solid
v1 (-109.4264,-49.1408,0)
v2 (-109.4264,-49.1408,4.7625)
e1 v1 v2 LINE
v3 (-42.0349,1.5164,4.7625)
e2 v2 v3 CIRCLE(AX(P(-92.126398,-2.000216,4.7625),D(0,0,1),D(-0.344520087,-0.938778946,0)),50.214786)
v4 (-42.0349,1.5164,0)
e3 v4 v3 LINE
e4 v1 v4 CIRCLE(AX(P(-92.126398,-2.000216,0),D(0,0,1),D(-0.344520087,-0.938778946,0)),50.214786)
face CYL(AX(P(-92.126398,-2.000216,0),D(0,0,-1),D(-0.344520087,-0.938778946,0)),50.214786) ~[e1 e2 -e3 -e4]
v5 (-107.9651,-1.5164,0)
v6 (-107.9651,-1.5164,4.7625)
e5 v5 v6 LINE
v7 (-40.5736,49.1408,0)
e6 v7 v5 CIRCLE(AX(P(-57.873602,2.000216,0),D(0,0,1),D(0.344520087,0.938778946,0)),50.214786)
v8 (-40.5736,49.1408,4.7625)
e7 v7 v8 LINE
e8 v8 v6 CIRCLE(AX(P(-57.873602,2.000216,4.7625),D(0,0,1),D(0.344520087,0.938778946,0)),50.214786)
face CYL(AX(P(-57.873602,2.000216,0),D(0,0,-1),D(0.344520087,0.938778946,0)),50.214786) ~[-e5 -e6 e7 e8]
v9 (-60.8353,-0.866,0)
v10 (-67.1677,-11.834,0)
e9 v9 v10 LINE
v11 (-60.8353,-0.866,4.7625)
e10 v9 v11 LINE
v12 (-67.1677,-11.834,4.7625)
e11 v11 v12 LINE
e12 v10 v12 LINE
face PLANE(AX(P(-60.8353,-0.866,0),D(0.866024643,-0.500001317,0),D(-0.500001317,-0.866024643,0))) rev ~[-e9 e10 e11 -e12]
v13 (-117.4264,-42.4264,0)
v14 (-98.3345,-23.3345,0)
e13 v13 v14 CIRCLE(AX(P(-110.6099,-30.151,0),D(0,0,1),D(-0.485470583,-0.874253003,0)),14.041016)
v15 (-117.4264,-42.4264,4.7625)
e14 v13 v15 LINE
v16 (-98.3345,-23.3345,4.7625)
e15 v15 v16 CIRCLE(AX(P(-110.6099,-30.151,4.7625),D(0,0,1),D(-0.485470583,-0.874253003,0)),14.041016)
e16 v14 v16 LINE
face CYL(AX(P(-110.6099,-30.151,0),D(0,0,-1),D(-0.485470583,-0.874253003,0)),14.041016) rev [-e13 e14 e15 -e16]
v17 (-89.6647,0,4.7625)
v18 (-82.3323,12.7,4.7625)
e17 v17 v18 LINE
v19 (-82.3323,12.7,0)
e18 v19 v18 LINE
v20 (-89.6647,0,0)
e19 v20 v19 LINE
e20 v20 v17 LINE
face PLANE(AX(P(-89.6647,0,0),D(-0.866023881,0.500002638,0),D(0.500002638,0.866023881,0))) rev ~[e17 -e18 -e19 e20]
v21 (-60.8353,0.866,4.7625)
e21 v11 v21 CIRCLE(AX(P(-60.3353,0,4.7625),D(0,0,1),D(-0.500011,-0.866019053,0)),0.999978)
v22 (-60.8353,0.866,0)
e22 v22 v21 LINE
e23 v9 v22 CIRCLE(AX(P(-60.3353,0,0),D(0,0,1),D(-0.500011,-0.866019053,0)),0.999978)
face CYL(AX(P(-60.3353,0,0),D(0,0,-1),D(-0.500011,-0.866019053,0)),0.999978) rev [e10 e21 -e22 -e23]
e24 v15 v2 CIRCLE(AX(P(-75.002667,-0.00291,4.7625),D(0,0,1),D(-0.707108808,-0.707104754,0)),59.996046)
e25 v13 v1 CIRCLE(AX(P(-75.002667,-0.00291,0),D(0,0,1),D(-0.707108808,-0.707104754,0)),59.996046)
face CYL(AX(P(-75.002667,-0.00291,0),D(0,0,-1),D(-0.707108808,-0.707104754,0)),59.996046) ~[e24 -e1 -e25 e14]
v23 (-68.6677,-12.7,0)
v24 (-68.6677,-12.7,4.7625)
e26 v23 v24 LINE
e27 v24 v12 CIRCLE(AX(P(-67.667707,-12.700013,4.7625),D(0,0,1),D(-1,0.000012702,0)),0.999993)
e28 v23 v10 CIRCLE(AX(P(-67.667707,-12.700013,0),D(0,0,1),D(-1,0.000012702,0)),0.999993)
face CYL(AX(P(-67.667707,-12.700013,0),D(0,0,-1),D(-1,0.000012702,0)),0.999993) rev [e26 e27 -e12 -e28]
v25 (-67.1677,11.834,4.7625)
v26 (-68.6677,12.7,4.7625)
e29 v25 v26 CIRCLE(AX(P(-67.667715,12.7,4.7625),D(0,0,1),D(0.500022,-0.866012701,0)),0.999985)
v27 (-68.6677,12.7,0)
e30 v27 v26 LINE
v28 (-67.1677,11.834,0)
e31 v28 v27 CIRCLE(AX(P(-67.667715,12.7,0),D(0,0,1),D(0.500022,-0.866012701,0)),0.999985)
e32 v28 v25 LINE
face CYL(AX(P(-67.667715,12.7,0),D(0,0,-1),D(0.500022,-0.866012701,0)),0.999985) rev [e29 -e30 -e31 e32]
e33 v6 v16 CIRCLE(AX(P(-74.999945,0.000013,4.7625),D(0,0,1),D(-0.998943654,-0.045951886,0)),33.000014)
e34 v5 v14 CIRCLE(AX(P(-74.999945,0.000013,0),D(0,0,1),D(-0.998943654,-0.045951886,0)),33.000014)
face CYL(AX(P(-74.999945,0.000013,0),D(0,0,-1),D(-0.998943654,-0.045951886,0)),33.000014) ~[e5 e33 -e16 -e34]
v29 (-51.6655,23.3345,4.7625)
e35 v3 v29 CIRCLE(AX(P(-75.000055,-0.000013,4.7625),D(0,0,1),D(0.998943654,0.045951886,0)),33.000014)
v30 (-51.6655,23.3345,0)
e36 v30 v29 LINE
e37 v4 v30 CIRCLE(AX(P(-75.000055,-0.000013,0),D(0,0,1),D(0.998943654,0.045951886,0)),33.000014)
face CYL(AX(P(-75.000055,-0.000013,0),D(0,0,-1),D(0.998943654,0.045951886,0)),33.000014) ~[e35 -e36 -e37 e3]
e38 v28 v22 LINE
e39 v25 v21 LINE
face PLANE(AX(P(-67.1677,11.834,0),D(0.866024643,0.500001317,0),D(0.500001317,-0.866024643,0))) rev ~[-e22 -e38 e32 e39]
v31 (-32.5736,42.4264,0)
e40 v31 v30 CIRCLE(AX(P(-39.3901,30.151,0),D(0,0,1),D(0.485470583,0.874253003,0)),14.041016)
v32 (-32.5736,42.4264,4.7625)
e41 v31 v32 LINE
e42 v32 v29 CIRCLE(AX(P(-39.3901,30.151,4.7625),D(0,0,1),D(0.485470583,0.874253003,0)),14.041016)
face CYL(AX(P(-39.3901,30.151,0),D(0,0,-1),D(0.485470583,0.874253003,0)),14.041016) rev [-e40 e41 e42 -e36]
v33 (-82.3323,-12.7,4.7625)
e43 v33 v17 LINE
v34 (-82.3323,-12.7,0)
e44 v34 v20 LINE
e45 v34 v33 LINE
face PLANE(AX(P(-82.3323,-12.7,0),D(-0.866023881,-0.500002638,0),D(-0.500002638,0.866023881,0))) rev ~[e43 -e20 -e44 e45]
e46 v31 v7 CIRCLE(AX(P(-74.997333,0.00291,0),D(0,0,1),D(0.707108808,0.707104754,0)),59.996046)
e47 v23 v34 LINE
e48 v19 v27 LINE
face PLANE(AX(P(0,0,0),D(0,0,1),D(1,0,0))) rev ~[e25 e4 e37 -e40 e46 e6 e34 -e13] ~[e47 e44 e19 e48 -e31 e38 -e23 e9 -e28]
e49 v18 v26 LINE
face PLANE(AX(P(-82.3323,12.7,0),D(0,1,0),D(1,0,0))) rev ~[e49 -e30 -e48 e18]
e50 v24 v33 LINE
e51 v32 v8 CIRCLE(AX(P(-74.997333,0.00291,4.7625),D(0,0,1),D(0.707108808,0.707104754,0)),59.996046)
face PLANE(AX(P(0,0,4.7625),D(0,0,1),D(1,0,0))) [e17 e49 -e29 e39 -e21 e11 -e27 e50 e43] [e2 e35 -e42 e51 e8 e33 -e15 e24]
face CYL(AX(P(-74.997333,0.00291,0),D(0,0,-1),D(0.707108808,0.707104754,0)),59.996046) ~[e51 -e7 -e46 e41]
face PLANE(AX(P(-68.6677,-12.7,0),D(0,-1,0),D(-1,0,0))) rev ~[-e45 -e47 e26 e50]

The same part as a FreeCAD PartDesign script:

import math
import FreeCAD as App
import Part
import Sketcher

V = App.Vector
Q = App.Units.Quantity

doc = App.newDocument("Part")
body = doc.addObject("PartDesign::Body", "Body")

sketch1 = doc.addObject("Sketcher::SketchObject", "Sketch")
body.addObject(sketch1)
sketch1.AttachmentSupport = (doc.XY_Plane, [""])
sketch1.MapMode = "FlatFace"
sketch1.addGeometry(Part.ArcOfCircle(Part.Circle(V(-57.8736, 2.0002, 0), V(0, 0, 1), 50.2148), math.radians(69.847506), math.radians(184.015777)), False)
sketch1.addGeometry(Part.ArcOfCircle(Part.Circle(V(-75, 0, 0), V(0, 0, 1), 32.999959), math.radians(-177.366241), math.radians(-135)), False)
sketch1.addGeometry(Part.ArcOfCircle(Part.Circle(V(-110.6099, -30.151, 0), V(0, 0, 1), 14.041016), math.radians(-119.043308), math.radians(29.043308)), False)
sketch1.addGeometry(Part.ArcOfCircle(Part.Circle(V(-75.002667, -0.00291, 0), V(0, 0, 1), 59.996046), math.radians(-135.000164), math.radians(-125.013308)), False)
sketch1.addGeometry(Part.ArcOfCircle(Part.Circle(V(-92.1264, -2.0002, 0), V(0, 0, 1), 50.2148), math.radians(-110.152494), math.radians(4.015777)), False)
sketch1.addGeometry(Part.ArcOfCircle(Part.Circle(V(-75, 0, 0), V(0, 0, 1), 32.999959), math.radians(2.633759), math.radians(45)), False)
sketch1.addGeometry(Part.ArcOfCircle(Part.Circle(V(-39.3901, 30.151, 0), V(0, 0, 1), 14.041016), math.radians(60.956692), math.radians(209.043308)), False)
sketch1.addGeometry(Part.ArcOfCircle(Part.Circle(V(-74.997333, 0.00291, 0), V(0, 0, 1), 59.996046), math.radians(44.999836), math.radians(54.986692)), False)
sketch1.addGeometry(Part.LineSegment(V(-68.6677, -12.7, 0), V(-82.3323, -12.7, 0)), False)
sketch1.addGeometry(Part.LineSegment(V(-82.3323, -12.7, 0), V(-89.6647, 0, 0)), False)
sketch1.addGeometry(Part.LineSegment(V(-89.6647, 0, 0), V(-82.3323, 12.7, 0)), False)
sketch1.addGeometry(Part.LineSegment(V(-82.3323, 12.7, 0), V(-68.6677, 12.7, 0)), False)
sketch1.addGeometry(Part.ArcOfCircle(Part.Circle(V(-67.6677, 12.7, 0), V(0, 0, 1), 0.999978), math.radians(-59.999272), math.radians(180)), False)
sketch1.addGeometry(Part.LineSegment(V(-67.1677, 11.834, 0), V(-60.8353, 0.866, 0)), False)
sketch1.addGeometry(Part.ArcOfCircle(Part.Circle(V(-60.3353, 0, 0), V(0, 0, 1), 0.999978), math.radians(-120.000728), math.radians(120.000728)), False)
sketch1.addGeometry(Part.LineSegment(V(-60.8353, -0.866, 0), V(-67.1677, -11.834, 0)), False)
sketch1.addGeometry(Part.ArcOfCircle(Part.Circle(V(-67.6677, -12.7, 0), V(0, 0, 1), 1), math.radians(180), math.radians(419.999272)), False)
sketch1.addConstraint(Sketcher.Constraint("Coincident", 0, 2, 1, 1))
sketch1.addConstraint(Sketcher.Constraint("Coincident", 1, 2, 2, 2))
sketch1.addConstraint(Sketcher.Constraint("Coincident", 2, 1, 3, 1))
sketch1.addConstraint(Sketcher.Constraint("Coincident", 3, 2, 4, 1))
sketch1.addConstraint(Sketcher.Constraint("Coincident", 4, 2, 5, 1))
sketch1.addConstraint(Sketcher.Constraint("Coincident", 5, 2, 6, 2))
sketch1.addConstraint(Sketcher.Constraint("Coincident", 6, 1, 7, 1))
sketch1.addConstraint(Sketcher.Constraint("Coincident", 7, 2, 0, 1))
sketch1.addConstraint(Sketcher.Constraint("Coincident", 8, 2, 9, 1))
sketch1.addConstraint(Sketcher.Constraint("Coincident", 9, 2, 10, 1))
sketch1.addConstraint(Sketcher.Constraint("Coincident", 10, 2, 11, 1))
sketch1.addConstraint(Sketcher.Constraint("Coincident", 11, 2, 12, 2))
sketch1.addConstraint(Sketcher.Constraint("Coincident", 12, 1, 13, 1))
sketch1.addConstraint(Sketcher.Constraint("Coincident", 13, 2, 14, 2))
sketch1.addConstraint(Sketcher.Constraint("Coincident", 14, 1, 15, 1))
sketch1.addConstraint(Sketcher.Constraint("Coincident", 15, 2, 16, 2))
sketch1.addConstraint(Sketcher.Constraint("Coincident", 16, 1, 8, 1))
sketch1.addConstraint(Sketcher.Constraint("Horizontal", 8))
sketch1.addConstraint(Sketcher.Constraint("Horizontal", 11))
sketch1.addConstraint(Sketcher.Constraint("Coincident", 5, 3, 1, 3))
sketch1.addConstraint(Sketcher.Constraint("Equal", 0, 4))
sketch1.addConstraint(Sketcher.Constraint("Equal", 1, 5))
sketch1.addConstraint(Sketcher.Constraint("Equal", 2, 6))
sketch1.addConstraint(Sketcher.Constraint("Equal", 3, 7))
sketch1.addConstraint(Sketcher.Constraint("Equal", 12, 14))
sketch1.addConstraint(Sketcher.Constraint("Equal", 14, 16))
sketch1.addConstraint(Sketcher.Constraint("Symmetric", 12, 3, 16, 3, -1))
sketch1.addConstraint(Sketcher.Constraint("Symmetric", 8, 2, 10, 2, -1))
sketch1.addConstraint(Sketcher.Constraint("Symmetric", 13, 2, 14, 1, -1))
sketch1.addConstraint(Sketcher.Constraint("PointOnObject", 1, 3, -1))
sketch1.addConstraint(Sketcher.Constraint("PointOnObject", 9, 2, -1))
sketch1.addConstraint(Sketcher.Constraint("Parallel", 9, 13))
sketch1.addConstraint(Sketcher.Constraint("Parallel", 10, 15))
sketch1.addConstraint(Sketcher.Constraint("Horizontal", 16, 3, 8, 2))
sketch1.addConstraint(Sketcher.Constraint("Radius", 1, 33.0))
sketch1.addConstraint(Sketcher.Constraint("Radius", 12, 1.0))
sketch1.addConstraint(Sketcher.Constraint("Angle", 9, Q("120.0002 deg")))
sketch1.addConstraint(Sketcher.Constraint("DistanceX", 1, 3, -1, 1, 75.0))
sketch1.addConstraint(Sketcher.Constraint("Radius", 2, 14.041))
sketch1.addConstraint(Sketcher.Constraint("Radius", 3, 59.996))
sketch1.addConstraint(Sketcher.Constraint("DistanceX", 2, 1, 3, 2, 8.0))
sketch1.addConstraint(Sketcher.Constraint("DistanceX", 7, 2, 6, 1, 8.0))
sketch1.addConstraint(Sketcher.Constraint("DistanceY", -1, 1, 12, 3, 12.7))
sketch1.addConstraint(Sketcher.Constraint("Radius", 0, 50.2148))
sketch1.addConstraint(Sketcher.Constraint("DistanceX", 2, 1, 4, 3, 25.3))
sketch1.addConstraint(Sketcher.Constraint("DistanceX", 0, 3, 6, 1, 25.3))
sketch1.addConstraint(Sketcher.Constraint("DistanceX", 12, 3, 12, 1, 0.5))
sketch1.addConstraint(Sketcher.Constraint("DistanceX", 13, 2, 14, 3, 0.5))
sketch1.addConstraint(Sketcher.Constraint("DistanceX", 2, 3, -1, 1, 110.61))
sketch1.addConstraint(Sketcher.Constraint("DistanceX", 6, 3, -1, 1, 39.39))
sketch1.addConstraint(Sketcher.Constraint("DistanceY", 2, 1, 0, 2, 40.91))
sketch1.addConstraint(Sketcher.Constraint("DistanceY", 4, 2, 6, 1, 40.91))
sketch1.addConstraint(Sketcher.Constraint("DistanceX", 8, 2, 8, 1, 13.6646))
sketch1.addConstraint(Sketcher.Constraint("DistanceY", 2, 3, -1, 1, 30.151))
sketch1.addConstraint(Sketcher.Constraint("DistanceY", 3, 3, -1, 1, 0.003))
sketch1.addConstraint(Sketcher.Constraint("DistanceY", -1, 1, 6, 3, 30.151))
sketch1.addConstraint(Sketcher.Constraint("DistanceY", -1, 1, 7, 3, 0.003))
sketch1.addConstraint(Sketcher.Constraint("DistanceX", 12, 3, 0, 3, 9.794))
pad1 = doc.addObject("PartDesign::Pad", "Pad")
body.addObject(pad1)
pad1.Profile = sketch1
pad1.Length = 4.7625

doc.recompute()
